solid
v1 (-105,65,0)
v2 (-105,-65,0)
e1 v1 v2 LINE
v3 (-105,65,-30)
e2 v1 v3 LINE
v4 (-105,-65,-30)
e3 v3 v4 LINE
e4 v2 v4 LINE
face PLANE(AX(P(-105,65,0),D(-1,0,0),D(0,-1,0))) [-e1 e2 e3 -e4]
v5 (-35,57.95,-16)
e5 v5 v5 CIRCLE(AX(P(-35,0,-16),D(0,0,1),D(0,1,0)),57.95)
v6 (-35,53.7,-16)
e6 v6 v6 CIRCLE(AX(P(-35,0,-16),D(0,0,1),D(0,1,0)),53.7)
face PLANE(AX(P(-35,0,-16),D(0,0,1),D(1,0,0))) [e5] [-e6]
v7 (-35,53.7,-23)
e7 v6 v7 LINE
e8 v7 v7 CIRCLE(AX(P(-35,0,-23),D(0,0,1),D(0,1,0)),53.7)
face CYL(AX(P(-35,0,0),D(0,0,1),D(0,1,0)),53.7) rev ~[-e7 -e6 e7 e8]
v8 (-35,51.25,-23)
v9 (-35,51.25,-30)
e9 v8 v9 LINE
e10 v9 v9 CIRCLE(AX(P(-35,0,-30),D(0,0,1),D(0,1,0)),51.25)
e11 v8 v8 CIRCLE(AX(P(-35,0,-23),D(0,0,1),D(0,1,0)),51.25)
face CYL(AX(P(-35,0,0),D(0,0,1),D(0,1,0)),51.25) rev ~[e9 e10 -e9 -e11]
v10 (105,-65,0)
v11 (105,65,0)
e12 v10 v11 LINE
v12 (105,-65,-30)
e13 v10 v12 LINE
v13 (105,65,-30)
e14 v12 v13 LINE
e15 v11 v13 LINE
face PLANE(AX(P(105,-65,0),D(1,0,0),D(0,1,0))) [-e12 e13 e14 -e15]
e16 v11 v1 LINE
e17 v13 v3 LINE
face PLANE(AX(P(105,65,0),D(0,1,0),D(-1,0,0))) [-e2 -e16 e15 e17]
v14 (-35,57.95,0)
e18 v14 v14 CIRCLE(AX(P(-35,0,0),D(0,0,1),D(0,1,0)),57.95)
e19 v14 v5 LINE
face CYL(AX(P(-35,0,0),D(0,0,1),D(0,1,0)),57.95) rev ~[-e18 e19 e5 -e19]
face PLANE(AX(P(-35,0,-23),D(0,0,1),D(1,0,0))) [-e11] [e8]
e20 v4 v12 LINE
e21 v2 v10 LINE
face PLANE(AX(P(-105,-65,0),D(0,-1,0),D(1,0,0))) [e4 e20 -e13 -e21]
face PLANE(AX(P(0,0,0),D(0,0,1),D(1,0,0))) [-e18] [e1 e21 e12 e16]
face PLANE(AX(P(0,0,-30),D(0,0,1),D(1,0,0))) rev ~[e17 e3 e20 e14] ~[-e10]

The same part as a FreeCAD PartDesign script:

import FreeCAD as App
import Part
import Sketcher
from FreeCAD import Vector
Q = App.Units.Quantity


def add_polygon(sketch, points):
    """Adds a closed chain of lines whose ends are joined by coincident constraints."""
    first, n = sketch.GeometryCount, len(points)
    for a, b in zip(points, points[1:] + points[:1]):
        sketch.addGeometry(Part.LineSegment(App.Vector(*a, 0), App.Vector(*b, 0)), False)
    for i in range(n):
        sketch.addConstraint(Sketcher.Constraint("Coincident", first + i, 2, first + (i + 1) % n, 1))

doc = App.newDocument("Part")
params = doc.addObject("Spreadsheet::Sheet", "Params")
for row, (alias, value) in enumerate([
    ("sketch1_width", "210 mm"),
    ("sketch1_height", "130 mm"),
    ("pad1_length", "30 mm"),
    ("sketch2_diameter", "102.5 mm"),
    ("pocket1_length", "30 mm"),
    ("sketch3_diameter", "107.4 mm"),
    ("pocket2_length", "23 mm"),
    ("sketch4_diameter", "115.9 mm"),
    ("pocket3_length", "16 mm"),
], start=1):
    params.set(f"A{row}", alias)
    params.set(f"B{row}", "=" + value)
    params.setAlias(f"B{row}", alias)

body = doc.addObject("PartDesign::Body", "Body")

sketch1 = body.newObject("Sketcher::SketchObject", "Sketch")
sketch1.AttachmentSupport = (doc.getObject("XY_Plane"), [""])
sketch1.MapMode = "FlatFace"
add_polygon(sketch1, [(-105, 65), (-105, -65), (105, -65), (105, 65)])
sketch1.addConstraint(Sketcher.Constraint("Vertical", 0))
sketch1.addConstraint(Sketcher.Constraint("Horizontal", 1))
sketch1.addConstraint(Sketcher.Constraint("Vertical", 2))
sketch1.addConstraint(Sketcher.Constraint("Horizontal", 3))
sketch1.addConstraint(Sketcher.Constraint("Symmetric", 0, 2, 2, 2, -1, 1))
sketch1.addConstraint(Sketcher.Constraint("DistanceX", 1, 1, 1, 2, Q("210 mm")))
sketch1.addConstraint(Sketcher.Constraint("DistanceY", 0, 2, 0, 1, Q("130 mm")))
sketch1.setExpression("Constraints[9]", "Params.sketch1_width")
sketch1.setExpression("Constraints[10]", "Params.sketch1_height")
pad1 = body.newObject("PartDesign::Pad", "Pad")
pad1.Profile = sketch1
pad1.setExpression("Length", "Params.pad1_length")
pad1.Reversed = True

sketch2 = body.newObject("Sketcher::SketchObject", "Sketch001")
sketch2.AttachmentSupport = (doc.getObject("XY_Plane"), [""])
sketch2.MapMode = "FlatFace"
sketch2.addGeometry(Part.Circle(Vector(-35, 0, 0), Vector(0, 0, 1), 51), False)
sketch2.addConstraint(Sketcher.Constraint("PointOnObject", 0, 3, -1))
sketch2.addConstraint(Sketcher.Constraint("Diameter", 0, Q("102.5 mm")))
sketch2.addConstraint(Sketcher.Constraint("DistanceX", 0, 3, -1, 1, Q("35 mm")))
sketch2.setExpression("Constraints[1]", "Params.sketch2_diameter")
pocket1 = body.newObject("PartDesign::Pocket", "Pocket")
pocket1.Profile = sketch2
pocket1.setExpression("Length", "Params.pocket1_length")

sketch3 = body.newObject("Sketcher::SketchObject", "Sketch002")
sketch3.AttachmentSupport = (doc.getObject("XY_Plane"), [""])
sketch3.MapMode = "FlatFace"
sketch3.addGeometry(Part.Circle(Vector(-35, 0, 0), Vector(0, 0, 1), 54), False)
sketch3.addConstraint(Sketcher.Constraint("PointOnObject", 0, 3, -1))
sketch3.addConstraint(Sketcher.Constraint("Diameter", 0, Q("107.4 mm")))
sketch3.addConstraint(Sketcher.Constraint("DistanceX", 0, 3, -1, 1, Q("35 mm")))
sketch3.setExpression("Constraints[1]", "Params.sketch3_diameter")
pocket2 = body.newObject("PartDesign::Pocket", "Pocket001")
pocket2.Profile = sketch3
pocket2.setExpression("Length", "Params.pocket2_length")

sketch4 = body.newObject("Sketcher::SketchObject", "Sketch003")
sketch4.AttachmentSupport = (doc.getObject("XY_Plane"), [""])
sketch4.MapMode = "FlatFace"
sketch4.addGeometry(Part.Circle(Vector(-35, 0, 0), Vector(0, 0, 1), 58), False)
sketch4.addConstraint(Sketcher.Constraint("PointOnObject", 0, 3, -1))
sketch4.addConstraint(Sketcher.Constraint("Diameter", 0, Q("115.9 mm")))
sketch4.addConstraint(Sketcher.Constraint("DistanceX", 0, 3, -1, 1, Q("35 mm")))
sketch4.setExpression("Constraints[1]", "Params.sketch4_diameter")
pocket3 = body.newObject("PartDesign::Pocket", "Pocket002")
pocket3.Profile = sketch4
pocket3.setExpression("Length", "Params.pocket3_length")

doc.recompute()
